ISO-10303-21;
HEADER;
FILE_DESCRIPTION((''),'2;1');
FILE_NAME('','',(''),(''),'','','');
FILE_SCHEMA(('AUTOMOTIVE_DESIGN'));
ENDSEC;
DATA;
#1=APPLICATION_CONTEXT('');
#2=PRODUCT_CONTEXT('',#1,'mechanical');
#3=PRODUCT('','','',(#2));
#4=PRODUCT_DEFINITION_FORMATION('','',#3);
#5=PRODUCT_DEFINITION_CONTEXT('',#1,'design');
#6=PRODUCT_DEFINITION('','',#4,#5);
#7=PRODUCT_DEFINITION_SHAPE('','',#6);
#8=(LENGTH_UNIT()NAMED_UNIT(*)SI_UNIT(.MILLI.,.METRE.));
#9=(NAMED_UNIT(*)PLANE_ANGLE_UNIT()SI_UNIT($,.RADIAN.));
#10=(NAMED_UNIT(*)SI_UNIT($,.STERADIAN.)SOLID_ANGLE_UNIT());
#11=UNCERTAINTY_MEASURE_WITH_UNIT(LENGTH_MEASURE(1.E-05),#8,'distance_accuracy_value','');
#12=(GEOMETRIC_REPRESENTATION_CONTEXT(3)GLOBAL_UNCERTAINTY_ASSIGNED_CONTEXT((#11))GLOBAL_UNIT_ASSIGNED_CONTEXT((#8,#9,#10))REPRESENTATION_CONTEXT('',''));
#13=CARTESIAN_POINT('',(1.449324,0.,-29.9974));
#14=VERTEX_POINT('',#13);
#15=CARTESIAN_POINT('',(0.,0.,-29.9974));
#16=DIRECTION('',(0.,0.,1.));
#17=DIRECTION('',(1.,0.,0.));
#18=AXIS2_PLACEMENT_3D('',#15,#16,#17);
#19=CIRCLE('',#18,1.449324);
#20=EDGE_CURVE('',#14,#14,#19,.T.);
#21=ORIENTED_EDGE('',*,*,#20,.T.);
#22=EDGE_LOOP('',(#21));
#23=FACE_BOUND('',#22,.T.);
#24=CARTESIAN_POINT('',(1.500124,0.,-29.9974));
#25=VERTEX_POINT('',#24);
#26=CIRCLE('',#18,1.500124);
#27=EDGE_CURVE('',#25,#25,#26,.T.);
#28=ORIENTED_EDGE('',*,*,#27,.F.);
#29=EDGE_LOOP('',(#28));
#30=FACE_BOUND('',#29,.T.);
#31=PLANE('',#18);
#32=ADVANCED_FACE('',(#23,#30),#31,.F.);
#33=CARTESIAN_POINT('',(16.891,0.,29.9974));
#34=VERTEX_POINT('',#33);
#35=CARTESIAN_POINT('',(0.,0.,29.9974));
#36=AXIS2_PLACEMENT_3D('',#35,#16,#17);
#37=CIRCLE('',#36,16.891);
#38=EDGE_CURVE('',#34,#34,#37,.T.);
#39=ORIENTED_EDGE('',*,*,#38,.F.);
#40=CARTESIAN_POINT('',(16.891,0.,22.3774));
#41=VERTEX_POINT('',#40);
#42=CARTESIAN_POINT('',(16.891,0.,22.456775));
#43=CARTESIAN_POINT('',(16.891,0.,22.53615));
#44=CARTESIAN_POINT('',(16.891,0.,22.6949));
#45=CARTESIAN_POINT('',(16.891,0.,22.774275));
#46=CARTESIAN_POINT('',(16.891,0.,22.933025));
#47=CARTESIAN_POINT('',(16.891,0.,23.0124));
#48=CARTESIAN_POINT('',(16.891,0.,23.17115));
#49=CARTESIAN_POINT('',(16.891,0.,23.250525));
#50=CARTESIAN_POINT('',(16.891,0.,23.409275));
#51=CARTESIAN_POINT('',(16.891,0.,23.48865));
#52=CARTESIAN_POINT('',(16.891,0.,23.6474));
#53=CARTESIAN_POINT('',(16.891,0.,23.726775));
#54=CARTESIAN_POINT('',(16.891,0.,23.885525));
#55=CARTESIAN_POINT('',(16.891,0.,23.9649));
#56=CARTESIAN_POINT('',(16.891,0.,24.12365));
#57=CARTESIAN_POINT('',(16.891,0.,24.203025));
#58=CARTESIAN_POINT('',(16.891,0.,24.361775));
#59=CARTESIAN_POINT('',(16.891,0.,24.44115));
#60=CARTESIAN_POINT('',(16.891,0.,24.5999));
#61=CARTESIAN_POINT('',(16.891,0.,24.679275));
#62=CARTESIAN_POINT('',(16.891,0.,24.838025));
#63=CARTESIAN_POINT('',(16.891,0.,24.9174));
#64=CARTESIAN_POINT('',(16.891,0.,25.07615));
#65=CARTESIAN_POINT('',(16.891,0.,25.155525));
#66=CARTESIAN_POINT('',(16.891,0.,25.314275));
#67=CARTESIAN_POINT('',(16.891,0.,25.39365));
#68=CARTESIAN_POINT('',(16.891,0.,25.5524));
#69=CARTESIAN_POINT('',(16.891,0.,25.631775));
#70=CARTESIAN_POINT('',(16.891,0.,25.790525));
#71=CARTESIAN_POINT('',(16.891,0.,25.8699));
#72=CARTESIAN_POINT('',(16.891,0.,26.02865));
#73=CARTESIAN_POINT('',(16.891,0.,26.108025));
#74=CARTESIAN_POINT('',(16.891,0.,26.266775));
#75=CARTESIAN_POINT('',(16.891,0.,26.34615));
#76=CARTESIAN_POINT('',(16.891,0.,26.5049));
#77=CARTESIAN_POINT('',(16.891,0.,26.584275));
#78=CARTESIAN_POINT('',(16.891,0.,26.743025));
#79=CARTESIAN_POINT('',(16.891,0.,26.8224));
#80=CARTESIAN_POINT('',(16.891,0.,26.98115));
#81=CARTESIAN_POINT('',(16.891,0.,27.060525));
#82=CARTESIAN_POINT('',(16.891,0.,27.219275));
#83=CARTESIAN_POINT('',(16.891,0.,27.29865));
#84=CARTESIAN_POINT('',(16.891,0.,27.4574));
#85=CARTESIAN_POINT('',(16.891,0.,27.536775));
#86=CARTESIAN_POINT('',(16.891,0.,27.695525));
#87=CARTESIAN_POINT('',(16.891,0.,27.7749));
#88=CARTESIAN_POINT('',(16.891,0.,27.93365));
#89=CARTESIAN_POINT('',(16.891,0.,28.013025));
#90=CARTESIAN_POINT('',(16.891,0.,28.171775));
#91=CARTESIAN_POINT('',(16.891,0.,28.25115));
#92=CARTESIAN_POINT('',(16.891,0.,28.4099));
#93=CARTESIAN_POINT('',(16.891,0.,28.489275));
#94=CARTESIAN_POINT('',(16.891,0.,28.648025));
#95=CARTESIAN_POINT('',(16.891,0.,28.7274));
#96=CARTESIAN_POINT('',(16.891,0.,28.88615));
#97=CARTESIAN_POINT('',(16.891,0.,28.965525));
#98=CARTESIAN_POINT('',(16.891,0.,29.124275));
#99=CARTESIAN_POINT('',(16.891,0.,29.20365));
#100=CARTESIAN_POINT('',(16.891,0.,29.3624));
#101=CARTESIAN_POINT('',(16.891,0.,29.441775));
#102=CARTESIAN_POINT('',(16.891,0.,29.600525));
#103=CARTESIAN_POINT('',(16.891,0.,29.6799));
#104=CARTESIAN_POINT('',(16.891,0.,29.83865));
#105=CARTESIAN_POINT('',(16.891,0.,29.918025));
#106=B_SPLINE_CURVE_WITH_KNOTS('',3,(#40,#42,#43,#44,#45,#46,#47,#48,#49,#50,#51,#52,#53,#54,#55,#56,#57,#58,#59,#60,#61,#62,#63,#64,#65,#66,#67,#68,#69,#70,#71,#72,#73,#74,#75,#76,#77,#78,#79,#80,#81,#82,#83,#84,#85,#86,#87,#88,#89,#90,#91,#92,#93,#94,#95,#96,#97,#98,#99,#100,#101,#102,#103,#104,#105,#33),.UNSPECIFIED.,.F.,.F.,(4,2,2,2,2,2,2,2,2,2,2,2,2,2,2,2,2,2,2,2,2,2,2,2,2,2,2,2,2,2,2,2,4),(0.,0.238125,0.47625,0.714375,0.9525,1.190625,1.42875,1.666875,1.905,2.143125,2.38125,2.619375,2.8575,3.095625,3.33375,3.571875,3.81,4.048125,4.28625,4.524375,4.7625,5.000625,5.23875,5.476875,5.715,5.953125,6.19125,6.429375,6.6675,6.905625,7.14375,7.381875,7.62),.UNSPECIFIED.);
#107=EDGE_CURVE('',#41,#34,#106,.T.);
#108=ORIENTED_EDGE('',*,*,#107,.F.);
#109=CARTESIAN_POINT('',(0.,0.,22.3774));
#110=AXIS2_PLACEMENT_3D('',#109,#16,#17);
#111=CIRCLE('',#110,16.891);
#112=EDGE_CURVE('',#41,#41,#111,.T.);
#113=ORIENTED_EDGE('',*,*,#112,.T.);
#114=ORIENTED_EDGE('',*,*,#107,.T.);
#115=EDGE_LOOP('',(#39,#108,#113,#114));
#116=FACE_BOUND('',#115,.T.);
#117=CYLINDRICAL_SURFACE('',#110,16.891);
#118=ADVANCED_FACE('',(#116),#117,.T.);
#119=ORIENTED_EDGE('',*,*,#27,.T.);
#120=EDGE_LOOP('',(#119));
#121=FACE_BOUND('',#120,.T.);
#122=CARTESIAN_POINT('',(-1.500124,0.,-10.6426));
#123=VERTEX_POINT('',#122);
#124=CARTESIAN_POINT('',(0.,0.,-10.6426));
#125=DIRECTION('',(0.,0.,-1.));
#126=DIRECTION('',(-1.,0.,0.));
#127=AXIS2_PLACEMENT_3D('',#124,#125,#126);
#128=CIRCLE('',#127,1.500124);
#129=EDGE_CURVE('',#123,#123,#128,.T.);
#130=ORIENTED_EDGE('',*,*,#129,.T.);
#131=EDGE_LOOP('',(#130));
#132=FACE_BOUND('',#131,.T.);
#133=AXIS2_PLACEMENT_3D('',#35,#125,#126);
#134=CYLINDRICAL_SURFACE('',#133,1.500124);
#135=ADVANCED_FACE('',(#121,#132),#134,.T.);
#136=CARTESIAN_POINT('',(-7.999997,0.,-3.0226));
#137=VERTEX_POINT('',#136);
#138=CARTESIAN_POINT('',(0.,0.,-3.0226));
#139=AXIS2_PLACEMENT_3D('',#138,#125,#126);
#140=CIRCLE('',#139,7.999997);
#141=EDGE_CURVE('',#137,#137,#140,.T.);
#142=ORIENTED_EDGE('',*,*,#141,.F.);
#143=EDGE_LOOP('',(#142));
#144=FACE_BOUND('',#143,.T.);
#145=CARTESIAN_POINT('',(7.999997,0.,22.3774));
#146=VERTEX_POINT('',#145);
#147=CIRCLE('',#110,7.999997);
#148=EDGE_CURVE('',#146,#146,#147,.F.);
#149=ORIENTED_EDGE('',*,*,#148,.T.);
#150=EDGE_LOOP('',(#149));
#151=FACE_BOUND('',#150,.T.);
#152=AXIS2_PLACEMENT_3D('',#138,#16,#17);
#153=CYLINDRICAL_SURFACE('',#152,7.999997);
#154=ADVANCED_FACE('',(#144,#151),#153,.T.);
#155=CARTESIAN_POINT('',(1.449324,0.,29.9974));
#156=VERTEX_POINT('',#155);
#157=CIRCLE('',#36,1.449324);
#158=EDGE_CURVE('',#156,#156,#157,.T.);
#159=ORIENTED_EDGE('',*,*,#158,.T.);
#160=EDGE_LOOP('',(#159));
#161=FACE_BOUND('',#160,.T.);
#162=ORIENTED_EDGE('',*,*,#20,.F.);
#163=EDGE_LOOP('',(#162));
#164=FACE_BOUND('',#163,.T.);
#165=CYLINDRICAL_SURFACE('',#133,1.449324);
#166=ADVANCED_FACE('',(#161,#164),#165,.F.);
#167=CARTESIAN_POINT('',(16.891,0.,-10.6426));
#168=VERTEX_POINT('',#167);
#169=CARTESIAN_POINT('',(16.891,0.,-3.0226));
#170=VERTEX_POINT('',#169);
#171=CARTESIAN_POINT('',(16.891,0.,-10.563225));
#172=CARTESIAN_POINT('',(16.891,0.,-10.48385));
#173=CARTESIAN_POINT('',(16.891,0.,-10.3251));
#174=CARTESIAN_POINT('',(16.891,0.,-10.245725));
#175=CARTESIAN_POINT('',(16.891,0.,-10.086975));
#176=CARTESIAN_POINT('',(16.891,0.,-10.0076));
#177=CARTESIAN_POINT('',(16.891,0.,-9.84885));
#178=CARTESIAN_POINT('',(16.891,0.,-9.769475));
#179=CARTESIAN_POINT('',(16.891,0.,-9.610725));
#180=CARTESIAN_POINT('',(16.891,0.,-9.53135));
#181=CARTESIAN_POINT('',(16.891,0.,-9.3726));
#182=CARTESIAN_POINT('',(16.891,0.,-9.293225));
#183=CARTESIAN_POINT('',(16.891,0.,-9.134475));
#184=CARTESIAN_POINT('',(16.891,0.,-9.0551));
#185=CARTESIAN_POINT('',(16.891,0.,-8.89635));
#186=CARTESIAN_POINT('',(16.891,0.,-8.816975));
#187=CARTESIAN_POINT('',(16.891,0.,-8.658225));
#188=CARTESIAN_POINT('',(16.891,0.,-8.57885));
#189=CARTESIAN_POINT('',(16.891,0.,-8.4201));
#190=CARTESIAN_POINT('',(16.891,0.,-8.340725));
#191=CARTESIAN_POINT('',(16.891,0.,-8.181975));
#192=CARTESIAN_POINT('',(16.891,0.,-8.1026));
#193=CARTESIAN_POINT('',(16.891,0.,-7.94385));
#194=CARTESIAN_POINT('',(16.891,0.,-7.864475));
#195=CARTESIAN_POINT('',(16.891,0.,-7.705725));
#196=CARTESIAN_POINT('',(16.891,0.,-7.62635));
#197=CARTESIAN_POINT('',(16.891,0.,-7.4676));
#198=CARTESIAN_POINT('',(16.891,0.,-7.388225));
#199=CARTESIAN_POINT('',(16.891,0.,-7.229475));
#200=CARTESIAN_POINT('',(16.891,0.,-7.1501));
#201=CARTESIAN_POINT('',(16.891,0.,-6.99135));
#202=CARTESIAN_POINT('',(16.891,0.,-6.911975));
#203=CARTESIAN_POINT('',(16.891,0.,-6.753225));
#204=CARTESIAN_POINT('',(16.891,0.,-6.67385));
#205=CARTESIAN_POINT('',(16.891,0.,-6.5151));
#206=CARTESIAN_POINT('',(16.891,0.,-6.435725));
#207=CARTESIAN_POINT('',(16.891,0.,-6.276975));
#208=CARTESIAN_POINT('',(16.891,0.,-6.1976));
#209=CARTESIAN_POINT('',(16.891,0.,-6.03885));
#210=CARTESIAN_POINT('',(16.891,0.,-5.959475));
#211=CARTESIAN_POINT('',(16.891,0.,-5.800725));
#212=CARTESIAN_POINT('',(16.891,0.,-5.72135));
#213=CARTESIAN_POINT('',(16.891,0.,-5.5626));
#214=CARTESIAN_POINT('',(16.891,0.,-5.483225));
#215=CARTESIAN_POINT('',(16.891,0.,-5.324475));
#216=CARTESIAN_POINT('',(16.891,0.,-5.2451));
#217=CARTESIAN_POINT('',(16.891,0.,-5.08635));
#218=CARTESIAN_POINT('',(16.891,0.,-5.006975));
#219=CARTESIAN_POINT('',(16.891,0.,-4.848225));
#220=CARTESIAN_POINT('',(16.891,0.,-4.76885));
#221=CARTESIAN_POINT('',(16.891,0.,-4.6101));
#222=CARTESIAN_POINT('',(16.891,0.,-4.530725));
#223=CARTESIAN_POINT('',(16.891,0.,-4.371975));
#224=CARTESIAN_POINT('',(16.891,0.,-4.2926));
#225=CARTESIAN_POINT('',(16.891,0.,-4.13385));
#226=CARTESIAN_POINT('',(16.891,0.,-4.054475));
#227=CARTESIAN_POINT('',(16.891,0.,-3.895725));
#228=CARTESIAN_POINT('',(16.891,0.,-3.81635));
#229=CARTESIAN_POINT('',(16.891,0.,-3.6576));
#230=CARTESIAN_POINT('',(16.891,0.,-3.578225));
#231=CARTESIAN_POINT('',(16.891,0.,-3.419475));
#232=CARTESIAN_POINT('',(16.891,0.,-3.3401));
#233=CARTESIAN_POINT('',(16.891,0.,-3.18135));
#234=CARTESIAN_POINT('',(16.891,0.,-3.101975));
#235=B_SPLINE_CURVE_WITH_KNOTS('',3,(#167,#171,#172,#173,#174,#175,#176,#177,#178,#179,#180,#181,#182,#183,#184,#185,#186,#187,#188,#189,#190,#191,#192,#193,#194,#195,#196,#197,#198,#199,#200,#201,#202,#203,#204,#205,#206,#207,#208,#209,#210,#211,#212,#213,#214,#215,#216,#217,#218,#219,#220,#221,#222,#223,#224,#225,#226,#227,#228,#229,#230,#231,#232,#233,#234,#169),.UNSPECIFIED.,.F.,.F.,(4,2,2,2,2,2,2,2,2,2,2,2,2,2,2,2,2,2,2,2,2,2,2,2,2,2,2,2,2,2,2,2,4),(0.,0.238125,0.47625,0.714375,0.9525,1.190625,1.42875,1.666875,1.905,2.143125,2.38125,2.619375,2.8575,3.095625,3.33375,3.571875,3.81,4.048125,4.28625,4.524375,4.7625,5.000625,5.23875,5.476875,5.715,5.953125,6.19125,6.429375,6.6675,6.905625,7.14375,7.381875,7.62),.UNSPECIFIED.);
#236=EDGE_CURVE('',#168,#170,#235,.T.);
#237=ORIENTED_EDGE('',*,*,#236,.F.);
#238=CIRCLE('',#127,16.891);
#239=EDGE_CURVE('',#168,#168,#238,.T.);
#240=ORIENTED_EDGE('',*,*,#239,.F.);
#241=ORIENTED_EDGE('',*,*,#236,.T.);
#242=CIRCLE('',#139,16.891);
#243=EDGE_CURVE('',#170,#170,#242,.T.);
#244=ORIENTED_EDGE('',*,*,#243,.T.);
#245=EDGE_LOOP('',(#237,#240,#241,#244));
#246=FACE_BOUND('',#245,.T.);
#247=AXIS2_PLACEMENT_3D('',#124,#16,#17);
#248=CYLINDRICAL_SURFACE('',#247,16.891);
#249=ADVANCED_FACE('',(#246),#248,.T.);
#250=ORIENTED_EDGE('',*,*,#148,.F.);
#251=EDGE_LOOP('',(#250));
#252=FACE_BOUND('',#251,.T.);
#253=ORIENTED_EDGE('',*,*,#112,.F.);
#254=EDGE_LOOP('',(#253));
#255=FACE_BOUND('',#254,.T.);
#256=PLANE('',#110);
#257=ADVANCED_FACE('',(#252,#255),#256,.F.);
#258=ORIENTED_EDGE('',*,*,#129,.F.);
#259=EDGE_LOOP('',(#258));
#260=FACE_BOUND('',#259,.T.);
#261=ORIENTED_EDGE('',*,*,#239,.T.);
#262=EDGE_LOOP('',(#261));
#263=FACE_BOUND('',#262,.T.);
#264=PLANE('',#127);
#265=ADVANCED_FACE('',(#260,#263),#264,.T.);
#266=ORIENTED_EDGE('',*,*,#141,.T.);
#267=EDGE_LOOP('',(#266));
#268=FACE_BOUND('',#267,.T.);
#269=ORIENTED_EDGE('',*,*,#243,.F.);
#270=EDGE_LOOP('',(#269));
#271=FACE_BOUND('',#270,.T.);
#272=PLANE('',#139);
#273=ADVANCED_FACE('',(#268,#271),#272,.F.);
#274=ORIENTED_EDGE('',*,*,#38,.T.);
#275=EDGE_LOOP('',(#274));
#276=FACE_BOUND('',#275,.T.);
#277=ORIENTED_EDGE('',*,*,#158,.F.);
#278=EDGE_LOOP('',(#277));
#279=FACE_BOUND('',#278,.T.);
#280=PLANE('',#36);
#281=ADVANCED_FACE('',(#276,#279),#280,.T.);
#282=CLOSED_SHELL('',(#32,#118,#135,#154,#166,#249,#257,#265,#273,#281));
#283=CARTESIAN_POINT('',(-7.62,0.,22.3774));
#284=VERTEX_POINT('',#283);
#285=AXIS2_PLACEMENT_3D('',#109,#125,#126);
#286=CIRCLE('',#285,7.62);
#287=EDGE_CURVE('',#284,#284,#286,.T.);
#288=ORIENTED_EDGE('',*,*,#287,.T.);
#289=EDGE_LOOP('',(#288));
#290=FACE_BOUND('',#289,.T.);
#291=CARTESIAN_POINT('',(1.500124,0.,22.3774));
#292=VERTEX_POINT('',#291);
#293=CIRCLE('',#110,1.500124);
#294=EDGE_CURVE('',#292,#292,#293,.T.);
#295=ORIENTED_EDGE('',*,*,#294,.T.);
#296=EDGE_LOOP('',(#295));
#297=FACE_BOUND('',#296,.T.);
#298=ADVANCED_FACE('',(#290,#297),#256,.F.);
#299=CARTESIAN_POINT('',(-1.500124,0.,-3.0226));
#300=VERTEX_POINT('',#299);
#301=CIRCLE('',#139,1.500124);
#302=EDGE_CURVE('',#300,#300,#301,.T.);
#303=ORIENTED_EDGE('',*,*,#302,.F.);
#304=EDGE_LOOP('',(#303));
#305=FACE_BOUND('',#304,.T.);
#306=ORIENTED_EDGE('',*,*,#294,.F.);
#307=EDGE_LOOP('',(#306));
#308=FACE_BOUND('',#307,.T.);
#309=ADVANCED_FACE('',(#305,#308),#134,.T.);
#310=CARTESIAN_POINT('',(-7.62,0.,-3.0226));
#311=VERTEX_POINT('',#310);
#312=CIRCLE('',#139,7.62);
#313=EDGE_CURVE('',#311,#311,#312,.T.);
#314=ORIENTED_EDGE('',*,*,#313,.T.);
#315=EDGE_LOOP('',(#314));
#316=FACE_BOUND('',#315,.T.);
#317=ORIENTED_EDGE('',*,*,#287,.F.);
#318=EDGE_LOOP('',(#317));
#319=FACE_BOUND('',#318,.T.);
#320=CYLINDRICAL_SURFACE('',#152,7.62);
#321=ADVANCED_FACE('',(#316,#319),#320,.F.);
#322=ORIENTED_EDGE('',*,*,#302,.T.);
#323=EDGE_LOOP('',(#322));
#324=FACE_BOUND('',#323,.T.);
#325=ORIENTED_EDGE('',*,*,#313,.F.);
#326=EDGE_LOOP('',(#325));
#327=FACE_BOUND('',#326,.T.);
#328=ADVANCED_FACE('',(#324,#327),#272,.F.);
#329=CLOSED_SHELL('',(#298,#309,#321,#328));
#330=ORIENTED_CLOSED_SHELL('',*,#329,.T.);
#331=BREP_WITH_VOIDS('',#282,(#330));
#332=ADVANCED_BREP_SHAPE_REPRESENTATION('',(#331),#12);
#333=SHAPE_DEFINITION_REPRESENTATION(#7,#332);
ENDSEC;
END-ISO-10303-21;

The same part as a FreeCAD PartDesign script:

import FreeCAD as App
import Part
import Sketcher

V = App.Vector
Q = App.Units.Quantity


def faces_at(feature, points):
    """Names of the faces that lie closest to the given points."""
    faces = feature.Shape.Faces
    near = lambda p: min(range(len(faces)), key=lambda i: faces[i].distToShape(Part.Vertex(*p))[0])
    return sorted({f"Face{near(p) + 1}" for p in points})

doc = App.newDocument("Part")
params = doc.addObject("Spreadsheet::Sheet", "Params")
for row, (alias, value) in enumerate([
    ("pad1_length", "2.362 in"),
    ("thickness_wall", "0.002 in"),
    ("sketch2_diameter", "1.33 in"),
    ("pad2_length", "0.3 in"),
    ("sketch3_diameter", "0.6 in"),
    ("pad3_length", "1 in"),
    ("sketch4_diameter", "1.33 in"),
    ("pad4_length", "0.3 in"),
    ("pad5_length", "0.1 in"),
], start=1):
    params.set(f"A{row}", alias)
    params.set(f"B{row}", "=" + value)
    params.setAlias(f"B{row}", alias)

body = doc.addObject("PartDesign::Body", "Body")

sketch1 = body.newObject("Sketcher::SketchObject", "Sketch")
sketch1.AttachmentSupport = (doc.getObject("XY_Plane"), [""])
sketch1.MapMode = "FlatFace"
sketch1.addGeometry(Part.Circle(V(0, 0, 0), V(0, 0, 1), 1.5), False)
sketch1.addConstraint(Sketcher.Constraint("Coincident", 0, 3, -1, 1))
sketch1.addConstraint(Sketcher.Constraint("Diameter", 0, Q("3.000248 mm")))
pad1 = body.newObject("PartDesign::Pad", "Pad")
pad1.Profile = sketch1
pad1.setExpression("Length", "Params.pad1_length")
pad1.Midplane = True
doc.recompute()

thickness = body.newObject("PartDesign::Thickness", "Thickness")
thickness.Base = (pad1, faces_at(pad1, [(0, 0, 29.997), (0, 0, -29.997)]))
thickness.setExpression("Value", "Params.thickness_wall")
thickness.Reversed = True
thickness.Join = "Intersection"

sketch2 = body.newObject("Sketcher::SketchObject", "Sketch001")
sketch2.AttachmentSupport = (doc.getObject("XY_Plane"), [""])
sketch2.MapMode = "FlatFace"
sketch2.AttachmentOffset = App.Placement(V(0, 0, 1.181 * 25.4), App.Rotation())
sketch2.addGeometry(Part.Circle(V(0, 0, 0), V(0, 0, 1), 16.9), False)
sketch2.addGeometry(Part.Circle(V(0, 0, 0), V(0, 0, 1), 1.4), False)
sketch2.addConstraint(Sketcher.Constraint("Coincident", 0, 3, -1, 1))
sketch2.addConstraint(Sketcher.Constraint("Coincident", 1, 3, -1, 1))
sketch2.addConstraint(Sketcher.Constraint("Diameter", 0, Q("1.33 in")))
sketch2.addConstraint(Sketcher.Constraint("Diameter", 1, Q("2.898648 mm")))
sketch2.setExpression("Constraints[2]", "Params.sketch2_diameter")
pad2 = body.newObject("PartDesign::Pad", "Pad001")
pad2.Profile = sketch2
pad2.setExpression("Length", "Params.pad2_length")
pad2.Reversed = True

sketch3 = body.newObject("Sketcher::SketchObject", "Sketch002")
sketch3.AttachmentSupport = (doc.getObject("XY_Plane"), [""])
sketch3.MapMode = "FlatFace"
sketch3.AttachmentOffset = App.Placement(V(0, 0, 0.881 * 25.4), App.Rotation())
sketch3.addGeometry(Part.Circle(V(0, 0, 0), V(0, 0, 1), 8), False)
sketch3.addGeometry(Part.Circle(V(0, 0, 0), V(0, 0, 1), 8), False)
sketch3.addConstraint(Sketcher.Constraint("Coincident", 0, 3, -1, 1))
sketch3.addConstraint(Sketcher.Constraint("Coincident", 1, 3, -1, 1))
sketch3.addConstraint(Sketcher.Constraint("Diameter", 1, Q("0.6 in")))
sketch3.addConstraint(Sketcher.Constraint("Diameter", 0, Q("15.999993 mm")))
sketch3.setExpression("Constraints[2]", "Params.sketch3_diameter")
pad3 = body.newObject("PartDesign::Pad", "Pad002")
pad3.Profile = sketch3
pad3.setExpression("Length", "Params.pad3_length")
pad3.Reversed = True

sketch4 = body.newObject("Sketcher::SketchObject", "Sketch003")
sketch4.AttachmentSupport = (doc.getObject("XY_Plane"), [""])
sketch4.MapMode = "FlatFace"
sketch4.AttachmentOffset = App.Placement(V(0, 0, -0.119 * 25.4), App.Rotation())
sketch4.addGeometry(Part.Circle(V(0, 0, 0), V(0, 0, 1), 16.9), False)
sketch4.addGeometry(Part.Circle(V(0, 0, 0), V(0, 0, 1), 1.5), False)
sketch4.addConstraint(Sketcher.Constraint("Coincident", 0, 3, -1, 1))
sketch4.addConstraint(Sketcher.Constraint("Coincident", 1, 3, -1, 1))
sketch4.addConstraint(Sketcher.Constraint("Diameter", 0, Q("1.33 in")))
sketch4.addConstraint(Sketcher.Constraint("Diameter", 1, Q("3.000248 mm")))
sketch4.setExpression("Constraints[2]", "Params.sketch4_diameter")
pad4 = body.newObject("PartDesign::Pad", "Pad003")
pad4.Profile = sketch4
pad4.setExpression("Length", "Params.pad4_length")
pad4.Reversed = True

sketch5 = body.newObject("Sketcher::SketchObject", "Sketch004")
sketch5.AttachmentSupport = (doc.getObject("XY_Plane"), [""])
sketch5.MapMode = "FlatFace"
sketch5.AttachmentOffset = App.Placement(V(0, 0, 1.181 * 25.4), App.Rotation())
sketch5.addGeometry(Part.Circle(V(0, 0, 0), V(0, 0, 1), 8), False)
sketch5.addGeometry(Part.Circle(V(0, 0, 0), V(0, 0, 1), 1.4), False)
sketch5.addConstraint(Sketcher.Constraint("Coincident", 0, 3, -1, 1))
sketch5.addConstraint(Sketcher.Constraint("Coincident", 1, 3, -1, 1))
sketch5.addConstraint(Sketcher.Constraint("Diameter", 1, Q("2.898648 mm")))
sketch5.addConstraint(Sketcher.Constraint("Diameter", 0, Q("15.999993 mm")))
pad5 = body.newObject("PartDesign::Pad", "Pad004")
pad5.Profile = sketch5
pad5.setExpression("Length", "Params.pad5_length")
pad5.Reversed = True

doc.recompute()
